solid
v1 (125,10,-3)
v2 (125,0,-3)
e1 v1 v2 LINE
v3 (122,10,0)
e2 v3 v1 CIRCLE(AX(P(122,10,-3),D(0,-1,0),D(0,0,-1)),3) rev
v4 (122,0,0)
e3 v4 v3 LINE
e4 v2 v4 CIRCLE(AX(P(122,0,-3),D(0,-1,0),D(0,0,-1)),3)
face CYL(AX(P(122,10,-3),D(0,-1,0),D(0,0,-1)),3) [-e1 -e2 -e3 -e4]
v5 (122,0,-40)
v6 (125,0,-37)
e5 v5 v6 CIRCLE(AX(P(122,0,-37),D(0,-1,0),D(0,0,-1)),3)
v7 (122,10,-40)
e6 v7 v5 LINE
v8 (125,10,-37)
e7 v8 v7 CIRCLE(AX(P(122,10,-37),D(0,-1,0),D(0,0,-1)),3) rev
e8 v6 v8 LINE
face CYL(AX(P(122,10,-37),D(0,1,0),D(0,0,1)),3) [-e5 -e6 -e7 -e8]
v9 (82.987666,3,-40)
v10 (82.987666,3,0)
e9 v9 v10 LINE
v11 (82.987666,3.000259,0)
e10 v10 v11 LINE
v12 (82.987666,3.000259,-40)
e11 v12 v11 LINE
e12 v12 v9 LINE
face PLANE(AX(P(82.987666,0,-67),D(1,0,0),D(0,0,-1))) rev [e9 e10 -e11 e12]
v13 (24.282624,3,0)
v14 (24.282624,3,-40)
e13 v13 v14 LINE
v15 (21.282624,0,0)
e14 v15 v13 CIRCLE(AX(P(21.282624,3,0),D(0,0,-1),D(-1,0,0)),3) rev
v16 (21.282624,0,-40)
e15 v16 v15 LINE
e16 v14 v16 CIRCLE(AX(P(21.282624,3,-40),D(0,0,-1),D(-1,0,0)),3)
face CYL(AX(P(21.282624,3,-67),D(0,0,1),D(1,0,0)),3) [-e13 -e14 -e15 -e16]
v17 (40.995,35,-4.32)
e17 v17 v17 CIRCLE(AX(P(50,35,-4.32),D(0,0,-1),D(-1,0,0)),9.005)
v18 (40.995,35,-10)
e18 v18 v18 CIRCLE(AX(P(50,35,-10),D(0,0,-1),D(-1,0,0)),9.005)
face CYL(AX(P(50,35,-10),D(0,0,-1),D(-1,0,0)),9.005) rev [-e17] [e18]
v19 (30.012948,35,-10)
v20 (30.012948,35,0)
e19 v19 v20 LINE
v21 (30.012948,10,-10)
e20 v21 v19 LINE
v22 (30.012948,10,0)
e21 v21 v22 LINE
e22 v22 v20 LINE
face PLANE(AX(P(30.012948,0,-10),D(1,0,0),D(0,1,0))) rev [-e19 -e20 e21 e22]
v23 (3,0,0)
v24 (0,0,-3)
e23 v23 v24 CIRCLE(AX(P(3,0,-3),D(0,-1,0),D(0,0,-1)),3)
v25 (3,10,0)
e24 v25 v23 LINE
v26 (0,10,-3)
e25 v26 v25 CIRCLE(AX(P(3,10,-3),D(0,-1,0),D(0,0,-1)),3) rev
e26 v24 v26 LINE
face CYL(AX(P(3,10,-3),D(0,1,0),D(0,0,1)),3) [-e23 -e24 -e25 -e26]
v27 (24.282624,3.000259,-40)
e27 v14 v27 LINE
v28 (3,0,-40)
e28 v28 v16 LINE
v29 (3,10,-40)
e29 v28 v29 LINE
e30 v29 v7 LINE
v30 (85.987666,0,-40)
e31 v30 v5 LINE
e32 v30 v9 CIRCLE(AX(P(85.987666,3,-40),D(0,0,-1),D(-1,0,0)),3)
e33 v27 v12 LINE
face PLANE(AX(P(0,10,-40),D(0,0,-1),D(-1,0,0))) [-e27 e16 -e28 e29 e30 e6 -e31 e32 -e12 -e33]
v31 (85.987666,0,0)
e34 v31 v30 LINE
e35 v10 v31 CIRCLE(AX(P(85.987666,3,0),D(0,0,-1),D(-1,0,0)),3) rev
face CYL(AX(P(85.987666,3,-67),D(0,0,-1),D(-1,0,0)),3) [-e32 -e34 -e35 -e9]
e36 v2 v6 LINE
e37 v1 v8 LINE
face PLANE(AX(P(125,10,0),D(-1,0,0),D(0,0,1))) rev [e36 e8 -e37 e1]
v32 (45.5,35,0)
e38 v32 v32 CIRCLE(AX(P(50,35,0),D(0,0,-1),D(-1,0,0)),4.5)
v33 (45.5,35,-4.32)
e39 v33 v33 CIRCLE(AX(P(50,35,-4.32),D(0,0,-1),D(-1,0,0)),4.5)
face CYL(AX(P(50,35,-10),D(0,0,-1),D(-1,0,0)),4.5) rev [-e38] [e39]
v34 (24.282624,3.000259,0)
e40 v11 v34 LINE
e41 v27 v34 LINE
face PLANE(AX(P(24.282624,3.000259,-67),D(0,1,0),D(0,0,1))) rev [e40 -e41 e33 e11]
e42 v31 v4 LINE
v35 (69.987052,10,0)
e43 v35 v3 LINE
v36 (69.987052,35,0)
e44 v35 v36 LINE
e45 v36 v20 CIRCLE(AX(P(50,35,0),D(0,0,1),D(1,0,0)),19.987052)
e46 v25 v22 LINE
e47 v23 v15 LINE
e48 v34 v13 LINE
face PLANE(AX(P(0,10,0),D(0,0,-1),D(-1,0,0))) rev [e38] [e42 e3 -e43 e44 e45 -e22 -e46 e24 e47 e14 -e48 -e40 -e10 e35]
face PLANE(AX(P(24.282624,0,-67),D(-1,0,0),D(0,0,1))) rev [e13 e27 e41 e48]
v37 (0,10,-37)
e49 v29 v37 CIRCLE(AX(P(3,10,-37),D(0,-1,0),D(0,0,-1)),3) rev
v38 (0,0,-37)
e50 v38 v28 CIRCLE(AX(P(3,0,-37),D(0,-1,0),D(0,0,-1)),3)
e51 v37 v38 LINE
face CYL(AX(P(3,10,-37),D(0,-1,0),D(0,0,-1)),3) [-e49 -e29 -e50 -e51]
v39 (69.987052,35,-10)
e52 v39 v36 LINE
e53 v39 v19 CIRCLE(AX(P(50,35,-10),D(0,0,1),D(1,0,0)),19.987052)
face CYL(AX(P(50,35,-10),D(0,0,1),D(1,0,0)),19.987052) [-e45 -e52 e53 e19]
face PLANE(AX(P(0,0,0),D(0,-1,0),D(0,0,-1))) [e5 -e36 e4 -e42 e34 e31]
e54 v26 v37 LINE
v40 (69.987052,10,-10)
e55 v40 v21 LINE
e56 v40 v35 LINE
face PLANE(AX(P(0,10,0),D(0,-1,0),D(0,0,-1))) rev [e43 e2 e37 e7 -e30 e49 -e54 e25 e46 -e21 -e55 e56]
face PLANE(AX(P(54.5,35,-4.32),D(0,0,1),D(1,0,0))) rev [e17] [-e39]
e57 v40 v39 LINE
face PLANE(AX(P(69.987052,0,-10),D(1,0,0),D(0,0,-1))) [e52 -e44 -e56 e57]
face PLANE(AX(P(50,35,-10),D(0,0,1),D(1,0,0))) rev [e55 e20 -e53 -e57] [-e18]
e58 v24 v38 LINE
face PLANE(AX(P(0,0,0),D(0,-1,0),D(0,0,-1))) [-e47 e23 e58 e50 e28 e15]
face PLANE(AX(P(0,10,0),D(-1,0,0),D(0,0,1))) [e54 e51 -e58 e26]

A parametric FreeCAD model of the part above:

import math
import FreeCAD as App
import Part
import Sketcher
Q = App.Units.Quantity


def edges_at(feature, points):
    """Names of the edges that pass closest to the given points."""
    edges = feature.Shape.Edges
    near = lambda p: min(range(len(edges)), key=lambda i: edges[i].distToShape(Part.Vertex(*p))[0])
    return sorted({f"Edge{near(p) + 1}" for p in points})


def add_polygon(sketch, points):
    """Adds a closed chain of lines whose ends are joined by coincident constraints."""
    first, n = sketch.GeometryCount, len(points)
    for a, b in zip(points, points[1:] + points[:1]):
        sketch.addGeometry(Part.LineSegment(App.Vector(*a, 0), App.Vector(*b, 0)), False)
    for i in range(n):
        sketch.addConstraint(Sketcher.Constraint("Coincident", first + i, 2, first + (i + 1) % n, 1))

doc = App.newDocument("Part")
params = doc.addObject("Spreadsheet::Sheet", "Params")
for row, (alias, value) in enumerate([
    ("sketch1_width", "125 mm"),
    ("sketch1_height", "40 mm"),
    ("pad1_length", "10 mm"),
    ("sketch2_height", "35 mm"),
    ("pad2_length", "10 mm"),
    ("pocket1_length", "67 mm"),
    ("fillet_radius", "3 mm"),
    ("fillet2_radius", "3 mm"),
    ("sketch4_diameter", "9 mm"),
    ("hole_diameter", "9 mm"),
    ("hole_cbore_diameter", "18.01 mm"),
    ("hole_cbore_depth", "5.68 mm"),
], start=1):
    params.set(f"A{row}", alias)
    params.set(f"B{row}", "=" + value)
    params.setAlias(f"B{row}", alias)

body = doc.addObject("PartDesign::Body", "Body")

# Sketch on XZ plane
sketch1 = body.newObject("Sketcher::SketchObject", "Sketch")
sketch1.AttachmentSupport = (doc.getObject("XZ_Plane"), [""])
sketch1.MapMode = "FlatFace"
add_polygon(sketch1, [(0, -40), (0, 0), (125, 0), (125, -40)])  # lines 0-3
sketch1.addConstraint(Sketcher.Constraint("Vertical", 0))
sketch1.addConstraint(Sketcher.Constraint("Horizontal", 1))
sketch1.addConstraint(Sketcher.Constraint("Vertical", 2))
sketch1.addConstraint(Sketcher.Constraint("Horizontal", 3))
sketch1.addConstraint(Sketcher.Constraint("Coincident", 0, 2, -1, 1))
sketch1.addConstraint(Sketcher.Constraint("DistanceX", 1, 1, 1, 2, Q("125 mm")))
sketch1.addConstraint(Sketcher.Constraint("DistanceY", 0, 1, 0, 2, Q("40 mm")))
sketch1.setExpression("Constraints[9]", "Params.sketch1_width")
sketch1.setExpression("Constraints[10]", "Params.sketch1_height")
pad1 = body.newObject("PartDesign::Pad", "Pad")
pad1.Profile = sketch1
pad1.setExpression("Length", "Params.pad1_length")
pad1.Reversed = True

# Sketch on XY plane
sketch2 = body.newObject("Sketcher::SketchObject", "Sketch001")
sketch2.AttachmentSupport = (doc.getObject("XY_Plane"), [""])
sketch2.MapMode = "FlatFace"
sketch2.addGeometry(Part.LineSegment(App.Vector(30, 0, 0), App.Vector(70, 0, 0)), False)
sketch2.addGeometry(Part.LineSegment(App.Vector(70, 0, 0), App.Vector(70, 35, 0)), False)
sketch2.addGeometry(Part.ArcOfCircle(Part.Circle(App.Vector(50, 35, 0), App.Vector(0, 0, 1), 20), math.radians(0), math.radians(180)), False)
sketch2.addGeometry(Part.LineSegment(App.Vector(30, 35, 0), App.Vector(30, 0, 0)), False)
sketch2.addConstraint(Sketcher.Constraint("Coincident", 0, 2, 1, 1))
sketch2.addConstraint(Sketcher.Constraint("Tangent", 1, 2, 2, 1))
sketch2.addConstraint(Sketcher.Constraint("Tangent", 2, 2, 3, 1))
sketch2.addConstraint(Sketcher.Constraint("Coincident", 3, 2, 0, 1))
sketch2.addConstraint(Sketcher.Constraint("Horizontal", 0))
sketch2.addConstraint(Sketcher.Constraint("Vertical", 1))
sketch2.addConstraint(Sketcher.Constraint("Vertical", 3))
sketch2.addConstraint(Sketcher.Constraint("PointOnObject", 0, 2, -1))
sketch2.addConstraint(Sketcher.Constraint("DistanceY", 1, 1, 1, 2, Q("35 mm")))
sketch2.addConstraint(Sketcher.Constraint("DistanceX", -1, 1, 2, 3, Q("50 mm")))
sketch2.addConstraint(Sketcher.Constraint("Radius", 2, Q("19.987052 mm")))
sketch2.setExpression("Constraints[8]", "Params.sketch2_height")
pad2 = body.newObject("PartDesign::Pad", "Pad001")
pad2.Profile = sketch2
pad2.setExpression("Length", "Params.pad2_length")
pad2.Reversed = True

# Sketch on XY plane
sketch3 = body.newObject("Sketcher::SketchObject", "Sketch002")
sketch3.AttachmentSupport = (doc.getObject("XY_Plane"), [""])
sketch3.MapMode = "FlatFace"
add_polygon(sketch3, [(24.3, 3), (24.3, 0), (83, 0), (83, 3)])  # lines 0-3
sketch3.addConstraint(Sketcher.Constraint("Vertical", 0))
sketch3.addConstraint(Sketcher.Constraint("Horizontal", 1))
sketch3.addConstraint(Sketcher.Constraint("Vertical", 2))
sketch3.addConstraint(Sketcher.Constraint("Horizontal", 3))
sketch3.addConstraint(Sketcher.Constraint("PointOnObject", 0, 2, -1))
sketch3.addConstraint(Sketcher.Constraint("DistanceX", 1, 1, 1, 2, Q("58.705042 mm")))
sketch3.addConstraint(Sketcher.Constraint("DistanceY", 0, 2, 0, 1, Q("3.000259 mm")))
sketch3.addConstraint(Sketcher.Constraint("DistanceX", -1, 1, 0, 2, Q("24.282624 mm")))
pocket1 = body.newObject("PartDesign::Pocket", "Pocket")
pocket1.Profile = sketch3
pocket1.setExpression("Length", "Params.pocket1_length")
doc.recompute()

fillet = body.newObject("PartDesign::Fillet", "Fillet")
fillet.Base = (pocket1, edges_at(pocket1, [
    (0, 5, 0),
    (125, 5, 0),
    (125, 5, -40),
    (0, 5, -40),
]))
fillet.setExpression("Radius", "Params.fillet_radius")
doc.recompute()

fillet2 = body.newObject("PartDesign::Fillet", "Fillet001")
fillet2.Base = (fillet, edges_at(fillet, [(82.988, 0, -20), (24.283, 0, -20)]))
fillet2.setExpression("Radius", "Params.fillet2_radius")

# Sketch on XY plane
sketch4 = body.newObject("Sketcher::SketchObject", "Sketch003")
sketch4.AttachmentSupport = (doc.getObject("XY_Plane"), [""])
sketch4.MapMode = "FlatFace"
sketch4.AttachmentOffset = App.Placement(App.Vector(0, 0, -10), App.Rotation())
sketch4.addGeometry(Part.Circle(App.Vector(50, 35, 0), App.Vector(0, 0, 1), 4.5), False)
sketch4.addConstraint(Sketcher.Constraint("Diameter", 0, Q("9 mm")))
sketch4.addConstraint(Sketcher.Constraint("DistanceX", -1, 1, 0, 3, Q("50 mm")))
sketch4.addConstraint(Sketcher.Constraint("DistanceY", -1, 1, 0, 3, Q("35 mm")))
sketch4.setExpression("Constraints[0]", "Params.sketch4_diameter")
doc.recompute()
hole = body.newObject("PartDesign::Hole", "Hole")
hole.Profile = sketch4
hole.ThreadType = "None"
hole.setExpression("Diameter", "Params.hole_diameter")
hole.DepthType = "ThroughAll"
hole.HoleCutType = "Counterbore"
hole.setExpression("HoleCutDiameter", "Params.hole_cbore_diameter")
hole.setExpression("HoleCutDepth", "Params.hole_cbore_depth")
hole.Reversed = True

doc.recompute()
